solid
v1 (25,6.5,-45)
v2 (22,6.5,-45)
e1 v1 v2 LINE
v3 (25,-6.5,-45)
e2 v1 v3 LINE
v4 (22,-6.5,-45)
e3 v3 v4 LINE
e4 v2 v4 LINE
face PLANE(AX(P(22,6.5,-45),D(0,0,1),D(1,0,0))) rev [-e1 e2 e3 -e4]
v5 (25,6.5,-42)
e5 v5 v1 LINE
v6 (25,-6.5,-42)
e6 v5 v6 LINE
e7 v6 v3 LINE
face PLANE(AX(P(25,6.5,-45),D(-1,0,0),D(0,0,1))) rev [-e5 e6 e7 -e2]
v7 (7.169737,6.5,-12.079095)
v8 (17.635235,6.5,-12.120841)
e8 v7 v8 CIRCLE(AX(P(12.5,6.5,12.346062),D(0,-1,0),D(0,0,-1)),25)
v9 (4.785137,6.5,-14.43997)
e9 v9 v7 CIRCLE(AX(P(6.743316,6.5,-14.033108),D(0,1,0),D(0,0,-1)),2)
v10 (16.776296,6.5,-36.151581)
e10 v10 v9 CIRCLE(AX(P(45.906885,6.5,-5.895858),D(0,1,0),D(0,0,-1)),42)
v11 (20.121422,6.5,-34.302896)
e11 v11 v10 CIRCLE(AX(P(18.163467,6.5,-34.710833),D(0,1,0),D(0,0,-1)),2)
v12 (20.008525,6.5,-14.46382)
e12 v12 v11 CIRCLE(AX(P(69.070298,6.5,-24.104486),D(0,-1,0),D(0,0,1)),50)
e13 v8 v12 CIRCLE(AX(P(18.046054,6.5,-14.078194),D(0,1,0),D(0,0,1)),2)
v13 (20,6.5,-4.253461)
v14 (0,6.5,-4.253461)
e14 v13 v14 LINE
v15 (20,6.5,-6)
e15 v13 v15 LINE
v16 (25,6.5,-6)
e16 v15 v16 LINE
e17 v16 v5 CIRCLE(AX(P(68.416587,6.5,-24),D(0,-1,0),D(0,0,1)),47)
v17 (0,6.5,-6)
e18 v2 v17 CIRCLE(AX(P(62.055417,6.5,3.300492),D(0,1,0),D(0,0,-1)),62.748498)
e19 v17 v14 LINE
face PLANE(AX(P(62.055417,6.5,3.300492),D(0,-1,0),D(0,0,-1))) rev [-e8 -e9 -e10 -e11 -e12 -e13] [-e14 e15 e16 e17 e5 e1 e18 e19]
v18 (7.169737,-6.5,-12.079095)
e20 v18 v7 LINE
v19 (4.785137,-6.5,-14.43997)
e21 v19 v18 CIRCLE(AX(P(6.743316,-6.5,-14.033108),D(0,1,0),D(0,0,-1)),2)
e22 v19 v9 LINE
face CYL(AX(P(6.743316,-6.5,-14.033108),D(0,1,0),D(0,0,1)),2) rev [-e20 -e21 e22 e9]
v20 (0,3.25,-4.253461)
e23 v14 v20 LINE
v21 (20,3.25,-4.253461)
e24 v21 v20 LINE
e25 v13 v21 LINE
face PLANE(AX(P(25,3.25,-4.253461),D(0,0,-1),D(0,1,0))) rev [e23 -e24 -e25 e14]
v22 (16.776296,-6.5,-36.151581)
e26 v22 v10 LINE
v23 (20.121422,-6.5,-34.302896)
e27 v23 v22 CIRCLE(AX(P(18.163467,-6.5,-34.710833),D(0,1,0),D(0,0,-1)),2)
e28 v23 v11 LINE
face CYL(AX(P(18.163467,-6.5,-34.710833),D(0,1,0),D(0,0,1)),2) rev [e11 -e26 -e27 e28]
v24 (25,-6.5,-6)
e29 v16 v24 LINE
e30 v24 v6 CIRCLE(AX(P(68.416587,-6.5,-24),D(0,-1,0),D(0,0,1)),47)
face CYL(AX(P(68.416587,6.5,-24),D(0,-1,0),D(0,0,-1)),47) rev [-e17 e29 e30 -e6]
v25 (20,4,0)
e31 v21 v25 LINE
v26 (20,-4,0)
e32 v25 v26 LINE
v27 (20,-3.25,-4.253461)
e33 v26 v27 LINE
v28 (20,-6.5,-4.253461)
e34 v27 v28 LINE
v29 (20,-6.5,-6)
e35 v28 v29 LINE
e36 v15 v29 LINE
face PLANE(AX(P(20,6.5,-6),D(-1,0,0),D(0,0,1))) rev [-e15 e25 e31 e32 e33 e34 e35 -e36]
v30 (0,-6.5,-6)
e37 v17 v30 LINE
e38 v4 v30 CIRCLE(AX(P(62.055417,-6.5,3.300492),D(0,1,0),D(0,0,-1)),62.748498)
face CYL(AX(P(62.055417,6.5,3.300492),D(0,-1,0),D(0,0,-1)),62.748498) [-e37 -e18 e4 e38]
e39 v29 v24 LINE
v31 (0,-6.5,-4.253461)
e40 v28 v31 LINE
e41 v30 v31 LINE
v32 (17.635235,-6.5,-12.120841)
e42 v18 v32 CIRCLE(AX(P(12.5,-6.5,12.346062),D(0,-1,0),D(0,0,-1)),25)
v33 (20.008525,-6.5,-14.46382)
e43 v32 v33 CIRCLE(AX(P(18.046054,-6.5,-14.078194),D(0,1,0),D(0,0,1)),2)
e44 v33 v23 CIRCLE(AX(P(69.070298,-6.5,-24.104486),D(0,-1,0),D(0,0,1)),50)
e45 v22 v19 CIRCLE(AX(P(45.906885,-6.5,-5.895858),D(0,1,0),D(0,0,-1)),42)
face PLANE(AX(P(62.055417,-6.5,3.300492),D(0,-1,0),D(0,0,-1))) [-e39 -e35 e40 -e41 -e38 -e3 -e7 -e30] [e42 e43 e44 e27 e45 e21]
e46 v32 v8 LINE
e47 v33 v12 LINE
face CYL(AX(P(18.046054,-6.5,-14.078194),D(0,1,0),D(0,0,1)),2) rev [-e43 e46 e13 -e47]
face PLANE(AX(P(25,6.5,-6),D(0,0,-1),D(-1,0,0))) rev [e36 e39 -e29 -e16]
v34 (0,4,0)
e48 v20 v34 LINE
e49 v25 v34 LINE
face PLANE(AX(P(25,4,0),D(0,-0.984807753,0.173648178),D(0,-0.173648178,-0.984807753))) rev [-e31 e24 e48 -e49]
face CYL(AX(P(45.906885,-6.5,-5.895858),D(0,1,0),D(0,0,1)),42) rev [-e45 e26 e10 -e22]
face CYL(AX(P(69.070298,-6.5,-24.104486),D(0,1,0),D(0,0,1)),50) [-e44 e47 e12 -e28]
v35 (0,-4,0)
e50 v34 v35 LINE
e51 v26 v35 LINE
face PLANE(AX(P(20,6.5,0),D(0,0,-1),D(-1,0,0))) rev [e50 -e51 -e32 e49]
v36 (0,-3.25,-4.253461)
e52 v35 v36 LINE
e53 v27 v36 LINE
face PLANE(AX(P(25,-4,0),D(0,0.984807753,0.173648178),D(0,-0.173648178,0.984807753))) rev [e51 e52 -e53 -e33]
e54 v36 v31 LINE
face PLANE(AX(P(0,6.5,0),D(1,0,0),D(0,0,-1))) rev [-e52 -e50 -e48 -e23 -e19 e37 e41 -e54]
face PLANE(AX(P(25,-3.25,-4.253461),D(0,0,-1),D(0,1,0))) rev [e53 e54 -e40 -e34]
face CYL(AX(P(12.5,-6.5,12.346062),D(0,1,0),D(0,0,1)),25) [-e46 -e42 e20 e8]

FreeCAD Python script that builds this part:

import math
import FreeCAD as App
import Part
import Sketcher
from FreeCAD import Vector
Q = App.Units.Quantity

doc = App.newDocument("Part")
body = doc.addObject("PartDesign::Body", "Body")

# Sketch on XZ plane
sketch1 = body.newObject("Sketcher::SketchObject", "Sketch")
sketch1.AttachmentSupport = (doc.getObject("XZ_Plane"), [""])
sketch1.MapMode = "FlatFace"
sketch1.addGeometry([
    Part.LineSegment(Vector(0, -6, 0), Vector(0, 0, 0)),  # 0
    Part.LineSegment(Vector(0, 0, 0), Vector(20, 0, 0)),  # 1
    Part.LineSegment(Vector(20, 0, 0), Vector(20, -6, 0)),  # 2
    Part.LineSegment(Vector(20, -6, 0), Vector(25, -6, 0)),  # 3
    Part.ArcOfCircle(Part.Circle(Vector(68.4, -24, 0), Vector(0, 0, 1), 47), math.radians(157), math.radians(203)),  # 4
    Part.LineSegment(Vector(25, -42, 0), Vector(25, -45, 0)),  # 5
    Part.LineSegment(Vector(25, -45, 0), Vector(22, -45, 0)),  # 6
    Part.ArcOfCircle(Part.Circle(Vector(62.1, 3.3, 0), Vector(0, 0, 1), 62.7), math.radians(-171), math.radians(-130)),  # 7
], False)
sketch1.addConstraint([
    Sketcher.Constraint("Coincident", 0, 2, 1, 1),
    Sketcher.Constraint("Coincident", 1, 2, 2, 1),
    Sketcher.Constraint("Coincident", 2, 2, 3, 1),
    Sketcher.Constraint("Coincident", 3, 2, 4, 1),
    Sketcher.Constraint("Coincident", 4, 2, 5, 1),
    Sketcher.Constraint("Coincident", 5, 2, 6, 1),
    Sketcher.Constraint("Coincident", 6, 2, 7, 2),
    Sketcher.Constraint("Coincident", 7, 1, 0, 1),
    Sketcher.Constraint("Vertical", 0),
    Sketcher.Constraint("Horizontal", 1),
    Sketcher.Constraint("Vertical", 2),
    Sketcher.Constraint("Horizontal", 3),
    Sketcher.Constraint("Vertical", 5),
    Sketcher.Constraint("Horizontal", 6),
    Sketcher.Constraint("Coincident", 0, 2, -1, 1),
    Sketcher.Constraint("Horizontal", 3, 2, 7, 1),
    Sketcher.Constraint("Vertical", 3, 2, 4, 2),
    Sketcher.Constraint("Equal", 6, 5),
    Sketcher.Constraint("Radius", 4, Q("47 mm")),
    Sketcher.Constraint("DistanceX", 1, 1, 1, 2, Q("20 mm")),
    Sketcher.Constraint("DistanceX", 3, 1, 3, 2, Q("5 mm")),
    Sketcher.Constraint("DistanceX", 6, 2, 6, 1, Q("3 mm")),
    Sketcher.Constraint("DistanceY", 0, 1, 0, 2, Q("6 mm")),
    Sketcher.Constraint("DistanceY", 4, 3, -1, 1, Q("24 mm")),
    Sketcher.Constraint("Radius", 7, Q("62.748498 mm")),
])
pad1 = body.newObject("PartDesign::Pad", "Pad")
pad1.Profile = sketch1
pad1.Length = 13
pad1.Midplane = True

# Sketch on YZ plane
sketch2 = body.newObject("Sketcher::SketchObject", "Sketch001")
sketch2.AttachmentSupport = (doc.getObject("YZ_Plane"), [""])
sketch2.MapMode = "FlatFace"
sketch2.addGeometry([
    Part.LineSegment(Vector(4, 0, 0), Vector(6.5, 0, 0)),  # 0
    Part.LineSegment(Vector(6.5, 0, 0), Vector(6.5, -4.3, 0)),  # 1
    Part.LineSegment(Vector(6.5, -4.3, 0), Vector(3.2, -4.3, 0)),  # 2
    Part.LineSegment(Vector(3.2, -4.3, 0), Vector(4, 0, 0)),  # 3
    Part.LineSegment(Vector(-4, 0, 0), Vector(-3.2, -4.3, 0)),  # 4
    Part.LineSegment(Vector(-3.2, -4.3, 0), Vector(-6.5, -4.3, 0)),  # 5
    Part.LineSegment(Vector(-6.5, -4.3, 0), Vector(-6.5, 0, 0)),  # 6
    Part.LineSegment(Vector(-6.5, 0, 0), Vector(-4, 0, 0)),  # 7
], False)
sketch2.addConstraint([
    Sketcher.Constraint("Coincident", 0, 2, 1, 1),
    Sketcher.Constraint("Coincident", 1, 2, 2, 1),
    Sketcher.Constraint("Coincident", 2, 2, 3, 1),
    Sketcher.Constraint("Coincident", 3, 2, 0, 1),
    Sketcher.Constraint("Coincident", 4, 2, 5, 1),
    Sketcher.Constraint("Coincident", 5, 2, 6, 1),
    Sketcher.Constraint("Coincident", 6, 2, 7, 1),
    Sketcher.Constraint("Coincident", 7, 2, 4, 1),
    Sketcher.Constraint("Horizontal", 0),
    Sketcher.Constraint("Vertical", 1),
    Sketcher.Constraint("Horizontal", 2),
    Sketcher.Constraint("Horizontal", 5),
    Sketcher.Constraint("Vertical", 6),
    Sketcher.Constraint("Horizontal", 7),
    Sketcher.Constraint("Symmetric", 0, 2, 6, 2, -1, 1),
    Sketcher.Constraint("Symmetric", 2, 2, 4, 2, -2),
    Sketcher.Constraint("Symmetric", 3, 2, 7, 2, -2),
    Sketcher.Constraint("Angle", 3, Q("80 deg")),
    Sketcher.Constraint("DistanceX", 0, 1, 0, 2, Q("2.5 mm")),
    Sketcher.Constraint("DistanceX", -1, 1, 3, 2, Q("4 mm")),
    Sketcher.Constraint("DistanceX", 2, 2, 2, 1, Q("3.25 mm")),
])
pocket1 = body.newObject("PartDesign::Pocket", "Pocket")
pocket1.Profile = sketch2
pocket1.Type = "ThroughAll"
pocket1.Reversed = True

# Sketch on XZ plane
sketch3 = body.newObject("Sketcher::SketchObject", "Sketch002")
sketch3.AttachmentSupport = (doc.getObject("XZ_Plane"), [""])
sketch3.MapMode = "FlatFace"
sketch3.AttachmentOffset = App.Placement(Vector(0, 0, -6.5), App.Rotation())
sketch3.addGeometry([
    Part.ArcOfCircle(Part.Circle(Vector(12.5, 12.346062, 0), Vector(0, 0, 1), 25), math.radians(-102.310564), math.radians(-78.146534)),  # 0
    Part.ArcOfCircle(Part.Circle(Vector(18.046054, -14.078194, 0), Vector(0, 0, 1), 2), math.radians(-11.117011), math.radians(101.853466)),  # 1
    Part.ArcOfCircle(Part.Circle(Vector(69.070298, -24.104486, 0), Vector(0, 0, 1), 50), math.radians(168.882989), math.radians(191.769106)),  # 2
    Part.ArcOfCircle(Part.Circle(Vector(18.163467, -34.710833, 0), Vector(0, 0, 1), 2), math.radians(-133.914603), math.radians(11.769106)),  # 3
    Part.ArcOfCircle(Part.Circle(Vector(45.906885, -5.895858, 0), Vector(0, 0, 1), 42), math.radians(-168.26232), math.radians(-133.914603)),  # 4
    Part.ArcOfCircle(Part.Circle(Vector(6.743316, -14.033108, 0), Vector(0, 0, 1), 2), math.radians(77.689436), math.radians(191.73768)),  # 5
], False)
sketch3.addConstraint([
    Sketcher.Constraint("Coincident", 0, 2, 1, 2),
    Sketcher.Constraint("Coincident", 1, 1, 2, 1),
    Sketcher.Constraint("Coincident", 2, 2, 3, 2),
    Sketcher.Constraint("Coincident", 3, 1, 4, 2),
    Sketcher.Constraint("Coincident", 4, 1, 5, 2),
    Sketcher.Constraint("Coincident", 5, 1, 0, 1),
    Sketcher.Constraint("Radius", 0, Q("25 mm")),
    Sketcher.Constraint("Radius", 1, Q("2 mm")),
    Sketcher.Constraint("Radius", 2, Q("50 mm")),
    Sketcher.Constraint("Radius", 3, Q("2 mm")),
    Sketcher.Constraint("Radius", 4, Q("42 mm")),
    Sketcher.Constraint("Radius", 5, Q("2 mm")),
    Sketcher.Constraint("DistanceX", -1, 1, 0, 3, Q("12.5 mm")),
    Sketcher.Constraint("DistanceX", 4, 1, 5, 1, Q("2.3846 mm")),
    Sketcher.Constraint("DistanceX", 5, 1, 0, 2, Q("10.465498 mm")),
    Sketcher.Constraint("DistanceY", 1, 3, 5, 1, Q("1.999099 mm")),
    Sketcher.Constraint("DistanceY", -1, 1, 0, 3, Q("12.346062 mm")),
    Sketcher.Constraint("DistanceY", 4, 3, -1, 1, Q("5.895858 mm")),
    Sketcher.Constraint("DistanceY", 0, 2, -1, 1, Q("12.120841 mm")),
    Sketcher.Constraint("DistanceY", 1, 1, -1, 1, Q("14.46382 mm")),
    Sketcher.Constraint("DistanceY", 3, 1, -1, 1, Q("36.151581 mm")),
    Sketcher.Constraint("DistanceY", 4, 1, -1, 1, Q("14.43997 mm")),
    Sketcher.Constraint("DistanceY", 2, 3, 1, 3, Q("10.026292 mm")),
    Sketcher.Constraint("DistanceX", 1, 3, 2, 2, Q("2.075368 mm")),
])
pocket2 = body.newObject("PartDesign::Pocket", "Pocket001")
pocket2.Profile = sketch3
pocket2.Type = "ThroughAll"
pocket2.Reversed = True

doc.recompute()
